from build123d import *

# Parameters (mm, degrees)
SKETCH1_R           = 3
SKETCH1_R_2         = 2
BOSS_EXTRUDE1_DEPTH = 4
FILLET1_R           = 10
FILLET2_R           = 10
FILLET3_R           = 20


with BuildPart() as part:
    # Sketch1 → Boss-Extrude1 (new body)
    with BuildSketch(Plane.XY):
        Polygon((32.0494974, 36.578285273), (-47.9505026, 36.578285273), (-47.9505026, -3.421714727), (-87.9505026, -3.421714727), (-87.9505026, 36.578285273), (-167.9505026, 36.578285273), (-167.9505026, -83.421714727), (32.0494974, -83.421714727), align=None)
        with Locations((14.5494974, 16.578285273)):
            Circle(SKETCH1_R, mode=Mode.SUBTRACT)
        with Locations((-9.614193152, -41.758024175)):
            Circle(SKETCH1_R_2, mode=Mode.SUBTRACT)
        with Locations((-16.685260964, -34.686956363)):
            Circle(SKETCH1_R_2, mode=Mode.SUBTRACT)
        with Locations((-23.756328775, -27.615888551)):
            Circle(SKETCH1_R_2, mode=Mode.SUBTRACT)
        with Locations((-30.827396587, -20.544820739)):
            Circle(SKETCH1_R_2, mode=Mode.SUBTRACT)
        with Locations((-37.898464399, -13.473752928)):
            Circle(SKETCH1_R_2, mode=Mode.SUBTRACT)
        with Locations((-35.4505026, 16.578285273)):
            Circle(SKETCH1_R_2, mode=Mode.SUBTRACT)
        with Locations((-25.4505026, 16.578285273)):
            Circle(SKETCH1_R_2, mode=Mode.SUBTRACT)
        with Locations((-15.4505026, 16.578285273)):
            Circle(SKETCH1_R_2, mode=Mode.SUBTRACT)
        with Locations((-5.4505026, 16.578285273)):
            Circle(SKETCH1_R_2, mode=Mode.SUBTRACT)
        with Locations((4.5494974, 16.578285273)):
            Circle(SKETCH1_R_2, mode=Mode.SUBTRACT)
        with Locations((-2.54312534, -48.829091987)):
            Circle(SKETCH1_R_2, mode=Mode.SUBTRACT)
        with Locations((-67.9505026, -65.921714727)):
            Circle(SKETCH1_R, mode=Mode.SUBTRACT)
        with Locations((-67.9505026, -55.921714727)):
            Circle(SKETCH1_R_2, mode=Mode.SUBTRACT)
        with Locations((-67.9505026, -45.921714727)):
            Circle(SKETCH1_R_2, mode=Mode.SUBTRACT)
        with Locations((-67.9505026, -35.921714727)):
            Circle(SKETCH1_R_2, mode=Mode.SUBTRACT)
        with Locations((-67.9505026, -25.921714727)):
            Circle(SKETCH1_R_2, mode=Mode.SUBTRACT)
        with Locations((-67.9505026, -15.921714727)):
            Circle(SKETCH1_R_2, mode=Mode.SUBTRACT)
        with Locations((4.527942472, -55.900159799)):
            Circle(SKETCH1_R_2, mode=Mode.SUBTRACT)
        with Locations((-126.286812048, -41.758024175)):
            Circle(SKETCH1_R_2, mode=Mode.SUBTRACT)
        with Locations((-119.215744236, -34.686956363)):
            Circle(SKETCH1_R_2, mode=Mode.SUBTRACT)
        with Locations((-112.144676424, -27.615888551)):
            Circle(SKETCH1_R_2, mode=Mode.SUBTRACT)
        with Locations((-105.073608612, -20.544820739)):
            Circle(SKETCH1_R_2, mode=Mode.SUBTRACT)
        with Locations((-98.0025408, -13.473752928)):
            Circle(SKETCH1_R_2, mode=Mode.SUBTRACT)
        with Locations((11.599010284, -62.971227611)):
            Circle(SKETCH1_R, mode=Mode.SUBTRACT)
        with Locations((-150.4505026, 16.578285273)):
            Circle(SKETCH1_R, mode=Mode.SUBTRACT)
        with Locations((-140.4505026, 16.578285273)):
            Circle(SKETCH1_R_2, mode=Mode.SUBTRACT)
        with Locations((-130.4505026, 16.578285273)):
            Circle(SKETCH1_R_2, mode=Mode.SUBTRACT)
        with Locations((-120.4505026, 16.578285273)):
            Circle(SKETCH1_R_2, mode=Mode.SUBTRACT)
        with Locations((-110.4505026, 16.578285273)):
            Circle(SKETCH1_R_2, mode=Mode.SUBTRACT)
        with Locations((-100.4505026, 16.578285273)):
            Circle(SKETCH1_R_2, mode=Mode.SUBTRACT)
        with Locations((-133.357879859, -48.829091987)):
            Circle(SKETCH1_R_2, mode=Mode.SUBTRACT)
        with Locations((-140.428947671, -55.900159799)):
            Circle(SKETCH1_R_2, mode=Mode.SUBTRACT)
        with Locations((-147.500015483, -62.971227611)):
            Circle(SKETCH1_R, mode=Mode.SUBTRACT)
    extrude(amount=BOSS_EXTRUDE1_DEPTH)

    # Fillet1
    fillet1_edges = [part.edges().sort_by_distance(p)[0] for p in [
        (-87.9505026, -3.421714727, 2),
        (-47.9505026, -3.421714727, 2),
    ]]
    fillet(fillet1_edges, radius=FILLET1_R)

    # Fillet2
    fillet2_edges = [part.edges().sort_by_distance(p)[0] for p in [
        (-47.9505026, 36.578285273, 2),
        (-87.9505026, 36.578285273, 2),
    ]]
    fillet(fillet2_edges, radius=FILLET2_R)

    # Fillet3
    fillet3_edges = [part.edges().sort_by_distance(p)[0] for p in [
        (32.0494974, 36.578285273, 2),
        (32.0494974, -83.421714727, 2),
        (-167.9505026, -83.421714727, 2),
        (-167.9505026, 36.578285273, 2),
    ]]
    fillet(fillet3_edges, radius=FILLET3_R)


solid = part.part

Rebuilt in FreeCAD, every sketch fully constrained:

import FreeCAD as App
import Part
import Sketcher
from FreeCAD import Vector
Q = App.Units.Quantity


def edges_at(feature, points):
    """Names of the edges that pass closest to the given points."""
    edges = feature.Shape.Edges
    near = lambda p: min(range(len(edges)), key=lambda i: edges[i].distToShape(Part.Vertex(*p))[0])
    return sorted({f"Edge{near(p) + 1}" for p in points})


def add_polygon(sketch, points):
    """Adds a closed chain of lines whose ends are joined by coincident constraints."""
    first, n = sketch.GeometryCount, len(points)
    for a, b in zip(points, points[1:] + points[:1]):
        sketch.addGeometry(Part.LineSegment(App.Vector(*a, 0), App.Vector(*b, 0)), False)
    for i in range(n):
        sketch.addConstraint(Sketcher.Constraint("Coincident", first + i, 2, first + (i + 1) % n, 1))

doc = App.newDocument("Part")
body = doc.addObject("PartDesign::Body", "Body")

# Sketch on XY plane
sketch1 = doc.addObject("Sketcher::SketchObject", "Sketch")
body.addObject(sketch1)
sketch1.AttachmentSupport = (doc.XY_Plane, [""])
sketch1.MapMode = "FlatFace"
add_polygon(sketch1, [(32, 36.6), (-48, 36.6), (-48, -3.4), (-88, -3.4), (-88, 36.6), (-168, 36.6), (-168, -83.4), (32, -83.4)])  # lines 0-7
sketch1.addGeometry(Part.Circle(Vector(-147.5, -63, 0), Vector(0, 0, 1), 3), False)  # 8
sketch1.addGeometry(Part.Circle(Vector(-140.4, -55.9, 0), Vector(0, 0, 1), 2), False)  # 9
sketch1.addGeometry(Part.Circle(Vector(-133.4, -48.8, 0), Vector(0, 0, 1), 2), False)  # 10
sketch1.addGeometry(Part.Circle(Vector(-126.3, -41.8, 0), Vector(0, 0, 1), 2), False)  # 11
sketch1.addGeometry(Part.Circle(Vector(-119.2, -34.7, 0), Vector(0, 0, 1), 2), False)  # 12
sketch1.addGeometry(Part.Circle(Vector(-112.1, -27.6, 0), Vector(0, 0, 1), 2), False)  # 13
sketch1.addGeometry(Part.Circle(Vector(-68, -65.9, 0), Vector(0, 0, 1), 3), False)  # 14
sketch1.addGeometry(Part.Circle(Vector(-68, -55.9, 0), Vector(0, 0, 1), 2), False)  # 15
sketch1.addGeometry(Part.Circle(Vector(11.6, -63, 0), Vector(0, 0, 1), 3), False)  # 16
sketch1.addGeometry(Part.Circle(Vector(4.5, -55.9, 0), Vector(0, 0, 1), 2), False)  # 17
sketch1.addGeometry(Part.Circle(Vector(-2.5, -48.8, 0), Vector(0, 0, 1), 2), False)  # 18
sketch1.addGeometry(Part.Circle(Vector(-68, -45.9, 0), Vector(0, 0, 1), 2), False)  # 19
sketch1.addGeometry(Part.Circle(Vector(-68, -35.9, 0), Vector(0, 0, 1), 2), False)  # 20
sketch1.addGeometry(Part.Circle(Vector(-68, -25.9, 0), Vector(0, 0, 1), 2), False)  # 21
sketch1.addGeometry(Part.Circle(Vector(-9.6, -41.8, 0), Vector(0, 0, 1), 2), False)  # 22
sketch1.addGeometry(Part.Circle(Vector(-16.7, -34.7, 0), Vector(0, 0, 1), 2), False)  # 23
sketch1.addGeometry(Part.Circle(Vector(-23.8, -27.6, 0), Vector(0, 0, 1), 2), False)  # 24
sketch1.addGeometry(Part.Circle(Vector(-105.1, -20.5, 0), Vector(0, 0, 1), 2), False)  # 25
sketch1.addGeometry(Part.Circle(Vector(-98, -13.5, 0), Vector(0, 0, 1), 2), False)  # 26
sketch1.addGeometry(Part.Circle(Vector(-150.5, 16.6, 0), Vector(0, 0, 1), 3), False)  # 27
sketch1.addGeometry(Part.Circle(Vector(-140.5, 16.6, 0), Vector(0, 0, 1), 2), False)  # 28
sketch1.addGeometry(Part.Circle(Vector(-130.5, 16.6, 0), Vector(0, 0, 1), 2), False)  # 29
sketch1.addGeometry(Part.Circle(Vector(-120.5, 16.6, 0), Vector(0, 0, 1), 2), False)  # 30
sketch1.addGeometry(Part.Circle(Vector(-110.5, 16.6, 0), Vector(0, 0, 1), 2), False)  # 31
sketch1.addGeometry(Part.Circle(Vector(-100.5, 16.6, 0), Vector(0, 0, 1), 2), False)  # 32
sketch1.addGeometry(Part.Circle(Vector(-68, -15.9, 0), Vector(0, 0, 1), 2), False)  # 33
sketch1.addGeometry(Part.Circle(Vector(-30.8, -20.5, 0), Vector(0, 0, 1), 2), False)  # 34
sketch1.addGeometry(Part.Circle(Vector(-37.9, -13.5, 0), Vector(0, 0, 1), 2), False)  # 35
sketch1.addGeometry(Part.Circle(Vector(-35.5, 16.6, 0), Vector(0, 0, 1), 2), False)  # 36
sketch1.addGeometry(Part.Circle(Vector(-25.5, 16.6, 0), Vector(0, 0, 1), 2), False)  # 37
sketch1.addGeometry(Part.Circle(Vector(-15.5, 16.6, 0), Vector(0, 0, 1), 2), False)  # 38
sketch1.addGeometry(Part.Circle(Vector(-5.5, 16.6, 0), Vector(0, 0, 1), 2), False)  # 39
sketch1.addGeometry(Part.Circle(Vector(4.5, 16.6, 0), Vector(0, 0, 1), 2), False)  # 40
sketch1.addGeometry(Part.Circle(Vector(14.5, 16.6, 0), Vector(0, 0, 1), 3), False)  # 41
sketch1.addConstraint(Sketcher.Constraint("Horizontal", 0))
sketch1.addConstraint(Sketcher.Constraint("Vertical", 1))
sketch1.addConstraint(Sketcher.Constraint("Horizontal", 2))
sketch1.addConstraint(Sketcher.Constraint("Vertical", 3))
sketch1.addConstraint(Sketcher.Constraint("Horizontal", 4))
sketch1.addConstraint(Sketcher.Constraint("Vertical", 5))
sketch1.addConstraint(Sketcher.Constraint("Horizontal", 6))
sketch1.addConstraint(Sketcher.Constraint("Vertical", 7))
sketch1.addConstraint(Sketcher.Constraint("Equal", 9, 10))
sketch1.addConstraint(Sketcher.Constraint("Equal", 10, 11))
sketch1.addConstraint(Sketcher.Constraint("Equal", 11, 12))
sketch1.addConstraint(Sketcher.Constraint("Equal", 12, 13))
sketch1.addConstraint(Sketcher.Constraint("Equal", 8, 14))
sketch1.addConstraint(Sketcher.Constraint("Equal", 13, 15))
sketch1.addConstraint(Sketcher.Constraint("Equal", 14, 16))
sketch1.addConstraint(Sketcher.Constraint("Equal", 15, 17))
sketch1.addConstraint(Sketcher.Constraint("Equal", 17, 18))
sketch1.addConstraint(Sketcher.Constraint("Equal", 18, 19))
sketch1.addConstraint(Sketcher.Constraint("Equal", 19, 20))
sketch1.addConstraint(Sketcher.Constraint("Equal", 20, 21))
sketch1.addConstraint(Sketcher.Constraint("Equal", 21, 22))
sketch1.addConstraint(Sketcher.Constraint("Equal", 22, 23))
sketch1.addConstraint(Sketcher.Constraint("Equal", 23, 24))
sketch1.addConstraint(Sketcher.Constraint("Equal", 24, 25))
sketch1.addConstraint(Sketcher.Constraint("Equal", 25, 26))
sketch1.addConstraint(Sketcher.Constraint("Equal", 16, 27))
sketch1.addConstraint(Sketcher.Constraint("Equal", 26, 28))
sketch1.addConstraint(Sketcher.Constraint("Equal", 28, 29))
sketch1.addConstraint(Sketcher.Constraint("Equal", 29, 30))
sketch1.addConstraint(Sketcher.Constraint("Equal", 30, 31))
sketch1.addConstraint(Sketcher.Constraint("Equal", 31, 32))
sketch1.addConstraint(Sketcher.Constraint("Equal", 32, 33))
sketch1.addConstraint(Sketcher.Constraint("Equal", 33, 34))
sketch1.addConstraint(Sketcher.Constraint("Equal", 34, 35))
sketch1.addConstraint(Sketcher.Constraint("Equal", 35, 36))
sketch1.addConstraint(Sketcher.Constraint("Equal", 36, 37))
sketch1.addConstraint(Sketcher.Constraint("Equal", 37, 38))
sketch1.addConstraint(Sketcher.Constraint("Equal", 38, 39))
sketch1.addConstraint(Sketcher.Constraint("Equal", 39, 40))
sketch1.addConstraint(Sketcher.Constraint("Equal", 27, 41))
sketch1.addConstraint(Sketcher.Constraint("Horizontal", 8, 3, 16, 3))
sketch1.addConstraint(Sketcher.Constraint("Horizontal", 9, 3, 17, 3))
sketch1.addConstraint(Sketcher.Constraint("Horizontal", 10, 3, 18, 3))
sketch1.addConstraint(Sketcher.Constraint("Horizontal", 11, 3, 22, 3))
sketch1.addConstraint(Sketcher.Constraint("Horizontal", 12, 3, 23, 3))
sketch1.addConstraint(Sketcher.Constraint("Horizontal", 13, 3, 24, 3))
sketch1.addConstraint(Sketcher.Constraint("Horizontal", 27, 3, 28, 3))
sketch1.addConstraint(Sketcher.Constraint("Horizontal", 28, 3, 29, 3))
sketch1.addConstraint(Sketcher.Constraint("Horizontal", 29, 3, 30, 3))
sketch1.addConstraint(Sketcher.Constraint("Horizontal", 30, 3, 31, 3))
sketch1.addConstraint(Sketcher.Constraint("Horizontal", 31, 3, 32, 3))
sketch1.addConstraint(Sketcher.Constraint("Horizontal", 25, 3, 34, 3))
sketch1.addConstraint(Sketcher.Constraint("Horizontal", 26, 3, 35, 3))
sketch1.addConstraint(Sketcher.Constraint("Horizontal", 32, 3, 36, 3))
sketch1.addConstraint(Sketcher.Constraint("Horizontal", 36, 3, 37, 3))
sketch1.addConstraint(Sketcher.Constraint("Horizontal", 37, 3, 38, 3))
sketch1.addConstraint(Sketcher.Constraint("Horizontal", 38, 3, 39, 3))
sketch1.addConstraint(Sketcher.Constraint("Horizontal", 39, 3, 40, 3))
sketch1.addConstraint(Sketcher.Constraint("Horizontal", 40, 3, 41, 3))
sketch1.addConstraint(Sketcher.Constraint("Horizontal", 0, 2, 3, 2))
sketch1.addConstraint(Sketcher.Constraint("Vertical", 14, 3, 15, 3))
sketch1.addConstraint(Sketcher.Constraint("Vertical", 15, 3, 19, 3))
sketch1.addConstraint(Sketcher.Constraint("Vertical", 19, 3, 20, 3))
sketch1.addConstraint(Sketcher.Constraint("Vertical", 20, 3, 21, 3))
sketch1.addConstraint(Sketcher.Constraint("Vertical", 21, 3, 33, 3))
sketch1.addConstraint(Sketcher.Constraint("Equal", 0, 4))
sketch1.addConstraint(Sketcher.Constraint("Equal", 2, 1))
sketch1.addConstraint(Sketcher.Constraint("Diameter", 8, Q("6 mm")))
sketch1.addConstraint(Sketcher.Constraint("Diameter", 9, Q("4 mm")))
sketch1.addConstraint(Sketcher.Constraint("DistanceX", 0, 2, 0, 1, Q("80 mm")))
sketch1.addConstraint(Sketcher.Constraint("DistanceX", 2, 2, 2, 1, Q("40 mm")))
sketch1.addConstraint(Sketcher.Constraint("DistanceY", 5, 2, 5, 1, Q("120 mm")))
sketch1.addConstraint(Sketcher.Constraint("DistanceY", 14, 3, 15, 3, Q("10 mm")))
sketch1.addConstraint(Sketcher.Constraint("DistanceY", 15, 3, 19, 3, Q("10 mm")))
sketch1.addConstraint(Sketcher.Constraint("DistanceY", 19, 3, 20, 3, Q("10 mm")))
sketch1.addConstraint(Sketcher.Constraint("DistanceY", 20, 3, 21, 3, Q("10 mm")))
sketch1.addConstraint(Sketcher.Constraint("DistanceX", 27, 3, 28, 3, Q("10 mm")))
sketch1.addConstraint(Sketcher.Constraint("DistanceX", 28, 3, 29, 3, Q("10 mm")))
sketch1.addConstraint(Sketcher.Constraint("DistanceX", 29, 3, 30, 3, Q("10 mm")))
sketch1.addConstraint(Sketcher.Constraint("DistanceX", 30, 3, 31, 3, Q("10 mm")))
sketch1.addConstraint(Sketcher.Constraint("DistanceX", 31, 3, 32, 3, Q("10 mm")))
sketch1.addConstraint(Sketcher.Constraint("DistanceY", 21, 3, 33, 3, Q("10 mm")))
sketch1.addConstraint(Sketcher.Constraint("DistanceX", 36, 3, 37, 3, Q("10 mm")))
sketch1.addConstraint(Sketcher.Constraint("DistanceX", 37, 3, 38, 3, Q("10 mm")))
sketch1.addConstraint(Sketcher.Constraint("DistanceX", 38, 3, 39, 3, Q("10 mm")))
sketch1.addConstraint(Sketcher.Constraint("DistanceX", 39, 3, 40, 3, Q("10 mm")))
sketch1.addConstraint(Sketcher.Constraint("DistanceX", 40, 3, 41, 3, Q("10 mm")))
sketch1.addConstraint(Sketcher.Constraint("DistanceY", 36, 3, 0, 2, Q("20 mm")))
sketch1.addConstraint(Sketcher.Constraint("DistanceX", 33, 3, 1, 2, Q("20 mm")))
sketch1.addConstraint(Sketcher.Constraint("DistanceX", 33, 3, 36, 3, Q("32.5 mm")))
sketch1.addConstraint(Sketcher.Constraint("DistanceY", 33, 3, 36, 3, Q("32.5 mm")))
sketch1.addConstraint(Sketcher.Constraint("DistanceX", 32, 3, 2, 2, Q("12.5 mm")))
sketch1.addConstraint(Sketcher.Constraint("DistanceY", 9, 3, -1, 1, Q("55.90016 mm")))
sketch1.addConstraint(Sketcher.Constraint("DistanceX", 10, 3, -1, 1, Q("133.35788 mm")))
sketch1.addConstraint(Sketcher.Constraint("DistanceY", 10, 3, -1, 1, Q("48.829092 mm")))
sketch1.addConstraint(Sketcher.Constraint("DistanceY", 13, 3, -1, 1, Q("27.615889 mm")))
sketch1.addConstraint(Sketcher.Constraint("DistanceX", -1, 1, 16, 3, Q("11.59901 mm")))
sketch1.addConstraint(Sketcher.Constraint("DistanceX", 23, 3, -1, 1, Q("16.685261 mm")))
sketch1.addConstraint(Sketcher.Constraint("DistanceX", 24, 3, -1, 1, Q("23.756329 mm")))
sketch1.addConstraint(Sketcher.Constraint("DistanceX", 25, 3, -1, 1, Q("105.073609 mm")))
sketch1.addConstraint(Sketcher.Constraint("DistanceY", 25, 3, -1, 1, Q("20.544821 mm")))
sketch1.addConstraint(Sketcher.Constraint("DistanceX", 26, 3, -1, 1, Q("98.002541 mm")))
sketch1.addConstraint(Sketcher.Constraint("DistanceX", 8, 3, 12, 3, Q("28.284271 mm")))
sketch1.addConstraint(Sketcher.Constraint("DistanceY", 8, 3, 12, 3, Q("28.284271 mm")))
sketch1.addConstraint(Sketcher.Constraint("DistanceX", 9, 3, 13, 3, Q("28.284271 mm")))
sketch1.addConstraint(Sketcher.Constraint("DistanceX", 8, 3, 13, 3, Q("35.355339 mm")))
sketch1.addConstraint(Sketcher.Constraint("DistanceY", 8, 3, 13, 3, Q("35.355339 mm")))
sketch1.addConstraint(Sketcher.Constraint("DistanceX", 12, 3, 14, 3, Q("51.265242 mm")))
sketch1.addConstraint(Sketcher.Constraint("DistanceY", 14, 3, 12, 3, Q("31.234758 mm")))
sketch1.addConstraint(Sketcher.Constraint("DistanceX", 11, 3, 14, 3, Q("58.336309 mm")))
sketch1.addConstraint(Sketcher.Constraint("DistanceY", 14, 3, 11, 3, Q("24.163691 mm")))
sketch1.addConstraint(Sketcher.Constraint("DistanceX", 13, 3, 17, 3, Q("116.672619 mm")))
sketch1.addConstraint(Sketcher.Constraint("DistanceX", 13, 3, 18, 3, Q("109.601551 mm")))
sketch1.addConstraint(Sketcher.Constraint("DistanceX", 19, 3, 22, 3, Q("58.336309 mm")))
sketch1.addConstraint(Sketcher.Constraint("DistanceX", 20, 3, 23, 3, Q("51.265242 mm")))
sketch1.addConstraint(Sketcher.Constraint("DistanceY", 21, 3, 26, 3, Q("12.447962 mm")))
sketch1.addConstraint(Sketcher.Constraint("DistanceX", 33, 3, 35, 3, Q("30.052038 mm")))
sketch1.addConstraint(Sketcher.Constraint("DistanceX", 34, 3, -1, 1, Q("30.827397 mm")))
pad1 = doc.addObject("PartDesign::Pad", "Pad")
body.addObject(pad1)
pad1.Profile = sketch1
pad1.Length = 4
doc.recompute()

fillet = doc.addObject("PartDesign::Fillet", "Fillet")
body.addObject(fillet)
fillet.Base = (pad1, edges_at(pad1, [(-87.951, -3.422, 2), (-47.951, -3.422, 2)]))
fillet.Radius = 10
doc.recompute()

fillet2 = doc.addObject("PartDesign::Fillet", "Fillet001")
body.addObject(fillet2)
fillet2.Base = (fillet, edges_at(fillet, [(-47.951, 36.578, 2), (-87.951, 36.578, 2)]))
fillet2.Radius = 10
doc.recompute()

fillet3 = doc.addObject("PartDesign::Fillet", "Fillet002")
body.addObject(fillet3)
fillet3.Base = (fillet2, edges_at(fillet2, [
    (32.049, 36.578, 2),
    (32.049, -83.422, 2),
    (-167.951, -83.422, 2),
    (-167.951, 36.578, 2),
]))
fillet3.Radius = 20

doc.recompute()
